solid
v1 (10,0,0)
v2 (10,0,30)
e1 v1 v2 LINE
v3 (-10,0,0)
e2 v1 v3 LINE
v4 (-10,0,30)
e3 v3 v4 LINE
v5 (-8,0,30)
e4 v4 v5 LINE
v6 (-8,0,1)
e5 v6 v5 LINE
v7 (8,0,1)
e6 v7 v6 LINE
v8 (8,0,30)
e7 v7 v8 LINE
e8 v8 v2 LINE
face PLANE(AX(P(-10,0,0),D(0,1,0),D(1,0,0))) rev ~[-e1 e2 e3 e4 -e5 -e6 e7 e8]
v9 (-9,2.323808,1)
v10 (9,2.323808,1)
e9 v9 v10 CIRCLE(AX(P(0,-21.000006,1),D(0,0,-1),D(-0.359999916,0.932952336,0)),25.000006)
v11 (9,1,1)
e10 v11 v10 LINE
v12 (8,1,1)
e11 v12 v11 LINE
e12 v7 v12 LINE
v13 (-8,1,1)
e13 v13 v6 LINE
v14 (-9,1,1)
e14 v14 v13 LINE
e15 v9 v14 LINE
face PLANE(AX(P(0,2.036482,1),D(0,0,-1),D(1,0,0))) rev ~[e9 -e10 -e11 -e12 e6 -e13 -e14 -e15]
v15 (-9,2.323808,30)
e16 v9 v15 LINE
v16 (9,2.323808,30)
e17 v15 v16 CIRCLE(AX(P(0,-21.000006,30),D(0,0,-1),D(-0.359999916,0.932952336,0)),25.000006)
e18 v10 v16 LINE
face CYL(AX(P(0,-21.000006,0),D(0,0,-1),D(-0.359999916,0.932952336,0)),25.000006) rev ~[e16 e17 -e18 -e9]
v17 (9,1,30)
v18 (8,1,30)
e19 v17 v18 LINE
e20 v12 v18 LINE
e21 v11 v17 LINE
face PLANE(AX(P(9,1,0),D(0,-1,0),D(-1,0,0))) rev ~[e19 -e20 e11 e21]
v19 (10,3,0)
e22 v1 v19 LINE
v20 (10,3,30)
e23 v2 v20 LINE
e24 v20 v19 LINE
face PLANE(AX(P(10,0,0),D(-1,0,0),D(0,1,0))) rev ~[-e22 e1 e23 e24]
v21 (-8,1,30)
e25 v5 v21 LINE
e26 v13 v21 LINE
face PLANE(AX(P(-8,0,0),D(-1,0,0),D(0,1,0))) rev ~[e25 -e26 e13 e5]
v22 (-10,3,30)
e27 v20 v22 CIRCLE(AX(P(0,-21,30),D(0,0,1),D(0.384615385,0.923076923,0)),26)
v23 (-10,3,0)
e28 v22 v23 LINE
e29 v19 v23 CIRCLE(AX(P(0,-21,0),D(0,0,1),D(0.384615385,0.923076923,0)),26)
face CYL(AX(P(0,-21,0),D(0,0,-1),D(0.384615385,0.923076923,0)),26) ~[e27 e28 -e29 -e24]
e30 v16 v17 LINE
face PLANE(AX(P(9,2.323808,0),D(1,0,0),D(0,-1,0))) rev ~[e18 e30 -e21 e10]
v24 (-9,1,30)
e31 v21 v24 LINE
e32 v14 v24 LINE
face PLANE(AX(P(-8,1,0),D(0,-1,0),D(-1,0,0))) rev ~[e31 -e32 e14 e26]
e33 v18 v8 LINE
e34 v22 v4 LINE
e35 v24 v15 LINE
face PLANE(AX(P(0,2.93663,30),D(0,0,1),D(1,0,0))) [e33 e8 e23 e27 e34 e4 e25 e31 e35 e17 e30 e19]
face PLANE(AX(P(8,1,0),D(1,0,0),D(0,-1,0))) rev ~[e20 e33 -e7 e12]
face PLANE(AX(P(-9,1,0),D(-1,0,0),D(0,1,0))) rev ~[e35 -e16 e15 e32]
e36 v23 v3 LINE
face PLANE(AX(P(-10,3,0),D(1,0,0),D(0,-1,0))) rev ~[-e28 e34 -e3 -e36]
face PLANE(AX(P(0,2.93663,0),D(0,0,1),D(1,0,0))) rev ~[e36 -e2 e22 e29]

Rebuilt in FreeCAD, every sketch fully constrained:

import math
import FreeCAD as App
import Part
import Sketcher

doc = App.newDocument("Part")
body = doc.addObject("PartDesign::Body", "Body")

# Sketch on XY plane
sketch1 = body.newObject("Sketcher::SketchObject", "Sketch")
sketch1.AttachmentSupport = (doc.getObject("XY_Plane"), [""])
sketch1.MapMode = "FlatFace"
sketch1.addGeometry(Part.LineSegment(App.Vector(-10, 3, 0), App.Vector(-10, 0, 0)), False)
sketch1.addGeometry(Part.LineSegment(App.Vector(-10, 0, 0), App.Vector(-8, 0, 0)), False)
sketch1.addGeometry(Part.LineSegment(App.Vector(-8, 0, 0), App.Vector(-8, 1, 0)), False)
sketch1.addGeometry(Part.LineSegment(App.Vector(-8, 1, 0), App.Vector(-9, 1, 0)), False)
sketch1.addGeometry(Part.LineSegment(App.Vector(-9, 1, 0), App.Vector(-9, 2.323808, 0)), False)
sketch1.addGeometry(Part.ArcOfCircle(Part.Circle(App.Vector(0, -21.000006, 0), App.Vector(0, 0, 1), 25.000006), math.radians(68.899809), math.radians(111.100191)), False)
sketch1.addGeometry(Part.LineSegment(App.Vector(9, 2.323808, 0), App.Vector(9, 1, 0)), False)
sketch1.addGeometry(Part.LineSegment(App.Vector(9, 1, 0), App.Vector(8, 1, 0)), False)
sketch1.addGeometry(Part.LineSegment(App.Vector(8, 1, 0), App.Vector(8, 0, 0)), False)
sketch1.addGeometry(Part.LineSegment(App.Vector(8, 0, 0), App.Vector(10, 0, 0)), False)
sketch1.addGeometry(Part.LineSegment(App.Vector(10, 0, 0), App.Vector(10, 3, 0)), False)
sketch1.addGeometry(Part.ArcOfCircle(Part.Circle(App.Vector(0, -21, 0), App.Vector(0, 0, 1), 26), math.radians(67.380135), math.radians(112.619865)), False)
sketch1.addConstraint(Sketcher.Constraint("Coincident", 0, 2, 1, 1))
sketch1.addConstraint(Sketcher.Constraint("Coincident", 1, 2, 2, 1))
sketch1.addConstraint(Sketcher.Constraint("Coincident", 2, 2, 3, 1))
sketch1.addConstraint(Sketcher.Constraint("Coincident", 3, 2, 4, 1))
sketch1.addConstraint(Sketcher.Constraint("Coincident", 4, 2, 5, 2))
sketch1.addConstraint(Sketcher.Constraint("Coincident", 5, 1, 6, 1))
sketch1.addConstraint(Sketcher.Constraint("Coincident", 6, 2, 7, 1))
sketch1.addConstraint(Sketcher.Constraint("Coincident", 7, 2, 8, 1))
sketch1.addConstraint(Sketcher.Constraint("Coincident", 8, 2, 9, 1))
sketch1.addConstraint(Sketcher.Constraint("Coincident", 9, 2, 10, 1))
sketch1.addConstraint(Sketcher.Constraint("Coincident", 10, 2, 11, 1))
sketch1.addConstraint(Sketcher.Constraint("Coincident", 11, 2, 0, 1))
sketch1.addConstraint(Sketcher.Constraint("Vertical", 0))
sketch1.addConstraint(Sketcher.Constraint("Horizontal", 1))
sketch1.addConstraint(Sketcher.Constraint("Vertical", 2))
sketch1.addConstraint(Sketcher.Constraint("Horizontal", 3))
sketch1.addConstraint(Sketcher.Constraint("Vertical", 4))
sketch1.addConstraint(Sketcher.Constraint("Vertical", 6))
sketch1.addConstraint(Sketcher.Constraint("Horizontal", 7))
sketch1.addConstraint(Sketcher.Constraint("Vertical", 8))
sketch1.addConstraint(Sketcher.Constraint("Horizontal", 9))
sketch1.addConstraint(Sketcher.Constraint("Vertical", 10))
sketch1.addConstraint(Sketcher.Constraint("Coincident", 11, 3, 5, 3))
sketch1.addConstraint(Sketcher.Constraint("Symmetric", 1, 2, 8, 2, -1, 1))
sketch1.addConstraint(Sketcher.Constraint("Symmetric", 4, 2, 5, 1, -2))
sketch1.addConstraint(Sketcher.Constraint("Symmetric", 0, 2, 9, 2, -2))
sketch1.addConstraint(Sketcher.Constraint("Horizontal", 3, 2, 6, 2))
sketch1.addConstraint(Sketcher.Constraint("Equal", 7, 2))
sketch1.addConstraint(Sketcher.Constraint("Radius", 11, 26.0))
sketch1.addConstraint(Sketcher.Constraint("DistanceX", 1, 1, 1, 2, 2.0))
sketch1.addConstraint(Sketcher.Constraint("DistanceX", 3, 2, 3, 1, 1.0))
sketch1.addConstraint(Sketcher.Constraint("DistanceY", 0, 2, 0, 1, 3.0))
sketch1.addConstraint(Sketcher.Constraint("DistanceY", 11, 3, -1, 1, 21.0))
sketch1.addConstraint(Sketcher.Constraint("Radius", 5, 25.000006))
pad1 = body.newObject("PartDesign::Pad", "Pad")
pad1.Profile = sketch1
pad1.Length = 30

# Sketch on XY plane
sketch2 = body.newObject("Sketcher::SketchObject", "Sketch001")
sketch2.AttachmentSupport = (doc.getObject("XY_Plane"), [""])
sketch2.MapMode = "FlatFace"
sketch2.addGeometry(Part.LineSegment(App.Vector(10, 0, 0), App.Vector(-10, 0, 0)), False)
sketch2.addGeometry(Part.LineSegment(App.Vector(-10, 0, 0), App.Vector(-10, 3, 0)), False)
sketch2.addGeometry(Part.ArcOfCircle(Part.Circle(App.Vector(0, -21, 0), App.Vector(0, 0, 1), 26), math.radians(67.380135), math.radians(112.619865)), False)
sketch2.addGeometry(Part.LineSegment(App.Vector(10, 3, 0), App.Vector(10, 0, 0)), False)
sketch2.addConstraint(Sketcher.Constraint("Coincident", 0, 2, 1, 1))
sketch2.addConstraint(Sketcher.Constraint("Coincident", 1, 2, 2, 2))
sketch2.addConstraint(Sketcher.Constraint("Coincident", 2, 1, 3, 1))
sketch2.addConstraint(Sketcher.Constraint("Coincident", 3, 2, 0, 1))
sketch2.addConstraint(Sketcher.Constraint("Horizontal", 0))
sketch2.addConstraint(Sketcher.Constraint("Vertical", 1))
sketch2.addConstraint(Sketcher.Constraint("Vertical", 3))
sketch2.addConstraint(Sketcher.Constraint("Symmetric", 0, 2, 3, 2, -1, 1))
sketch2.addConstraint(Sketcher.Constraint("PointOnObject", 2, 3, -2))
sketch2.addConstraint(Sketcher.Constraint("Radius", 2, 26.0))
sketch2.addConstraint(Sketcher.Constraint("DistanceX", 0, 2, 0, 1, 20.0))
sketch2.addConstraint(Sketcher.Constraint("DistanceY", 1, 1, 1, 2, 3.0))
pad2 = body.newObject("PartDesign::Pad", "Pad001")
pad2.Profile = sketch2
pad2.Length = 1

doc.recompute()
